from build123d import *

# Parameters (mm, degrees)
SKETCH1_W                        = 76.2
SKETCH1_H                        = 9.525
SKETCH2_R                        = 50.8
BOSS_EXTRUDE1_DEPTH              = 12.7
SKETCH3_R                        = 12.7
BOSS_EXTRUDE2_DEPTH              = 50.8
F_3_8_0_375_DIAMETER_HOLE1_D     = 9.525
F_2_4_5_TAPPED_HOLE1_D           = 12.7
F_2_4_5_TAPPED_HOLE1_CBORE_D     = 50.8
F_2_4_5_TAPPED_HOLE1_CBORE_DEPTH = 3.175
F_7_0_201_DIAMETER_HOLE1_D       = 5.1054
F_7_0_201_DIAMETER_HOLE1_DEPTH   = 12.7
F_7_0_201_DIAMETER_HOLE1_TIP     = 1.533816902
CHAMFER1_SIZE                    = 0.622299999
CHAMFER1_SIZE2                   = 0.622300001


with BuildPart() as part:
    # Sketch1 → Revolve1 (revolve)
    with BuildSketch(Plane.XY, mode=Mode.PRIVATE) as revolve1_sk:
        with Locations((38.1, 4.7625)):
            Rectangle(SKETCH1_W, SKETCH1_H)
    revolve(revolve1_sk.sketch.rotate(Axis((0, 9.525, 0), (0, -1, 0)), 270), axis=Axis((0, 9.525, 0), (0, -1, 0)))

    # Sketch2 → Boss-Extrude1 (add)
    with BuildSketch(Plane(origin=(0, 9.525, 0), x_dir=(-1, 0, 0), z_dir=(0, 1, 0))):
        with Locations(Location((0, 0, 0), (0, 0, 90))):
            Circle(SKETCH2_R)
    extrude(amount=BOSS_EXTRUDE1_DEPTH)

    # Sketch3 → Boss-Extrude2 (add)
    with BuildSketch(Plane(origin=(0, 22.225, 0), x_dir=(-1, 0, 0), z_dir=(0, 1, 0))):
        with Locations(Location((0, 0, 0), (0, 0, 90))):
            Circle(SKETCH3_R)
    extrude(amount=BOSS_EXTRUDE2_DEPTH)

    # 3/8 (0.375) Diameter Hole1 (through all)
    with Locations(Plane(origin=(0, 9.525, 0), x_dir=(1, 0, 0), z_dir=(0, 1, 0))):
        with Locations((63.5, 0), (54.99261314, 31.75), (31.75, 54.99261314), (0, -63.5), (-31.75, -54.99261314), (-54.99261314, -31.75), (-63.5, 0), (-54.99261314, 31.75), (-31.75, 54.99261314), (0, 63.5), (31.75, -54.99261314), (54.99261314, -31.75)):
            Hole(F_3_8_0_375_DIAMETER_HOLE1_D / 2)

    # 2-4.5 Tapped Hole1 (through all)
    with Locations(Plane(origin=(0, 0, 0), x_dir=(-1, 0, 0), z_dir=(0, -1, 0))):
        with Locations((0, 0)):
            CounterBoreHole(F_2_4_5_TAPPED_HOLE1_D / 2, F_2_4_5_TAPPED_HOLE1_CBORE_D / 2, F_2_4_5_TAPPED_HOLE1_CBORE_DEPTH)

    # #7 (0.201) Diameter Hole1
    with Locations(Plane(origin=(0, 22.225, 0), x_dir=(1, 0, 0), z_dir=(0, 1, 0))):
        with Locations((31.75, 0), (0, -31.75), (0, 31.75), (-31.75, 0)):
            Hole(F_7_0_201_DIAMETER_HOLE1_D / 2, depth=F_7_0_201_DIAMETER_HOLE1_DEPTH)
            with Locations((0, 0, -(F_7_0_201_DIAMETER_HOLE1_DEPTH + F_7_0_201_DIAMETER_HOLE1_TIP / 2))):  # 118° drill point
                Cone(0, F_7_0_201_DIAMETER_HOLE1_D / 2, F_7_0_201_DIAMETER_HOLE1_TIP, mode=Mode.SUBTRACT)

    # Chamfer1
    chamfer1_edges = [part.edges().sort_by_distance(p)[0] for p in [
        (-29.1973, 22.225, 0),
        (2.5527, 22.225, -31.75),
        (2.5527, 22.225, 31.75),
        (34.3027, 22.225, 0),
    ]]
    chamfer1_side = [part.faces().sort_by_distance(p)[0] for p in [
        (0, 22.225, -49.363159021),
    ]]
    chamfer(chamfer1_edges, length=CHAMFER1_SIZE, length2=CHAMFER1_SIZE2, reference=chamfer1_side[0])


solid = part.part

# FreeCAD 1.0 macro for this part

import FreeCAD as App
import Part
import Sketcher

V = App.Vector
Q = App.Units.Quantity


def edges_at(feature, points):
    """Names of the edges that pass closest to the given points."""
    edges = feature.Shape.Edges
    near = lambda p: min(range(len(edges)), key=lambda i: edges[i].distToShape(Part.Vertex(*p))[0])
    return sorted({f"Edge{near(p) + 1}" for p in points})

doc = App.newDocument("Part")
body = doc.addObject("PartDesign::Body", "Body")

# Sketch on XY plane
sketch1 = body.newObject("Sketcher::SketchObject", "Sketch")
sketch1.AttachmentSupport = (doc.getObject("XY_Plane"), [""])
sketch1.MapMode = "FlatFace"
sketch1.addGeometry([
    Part.LineSegment(V(0, 10, 0), V(0, 0, 0)),
    Part.LineSegment(V(0, 0, 0), V(76, 0, 0)),
    Part.LineSegment(V(76, 0, 0), V(76, 10, 0)),
    Part.LineSegment(V(76, 10, 0), V(0, 10, 0)),
], False)
sketch1.addConstraint([
    Sketcher.Constraint("Coincident", 0, 2, 1, 1),
    Sketcher.Constraint("Coincident", 1, 2, 2, 1),
    Sketcher.Constraint("Coincident", 2, 2, 3, 1),
    Sketcher.Constraint("Coincident", 3, 2, 0, 1),
    Sketcher.Constraint("Vertical", 0),
    Sketcher.Constraint("Horizontal", 1),
    Sketcher.Constraint("Vertical", 2),
    Sketcher.Constraint("Horizontal", 3),
    Sketcher.Constraint("Coincident", 0, 2, -1, 1),
    Sketcher.Constraint("DistanceX", 1, 1, 1, 2, Q("3 in")),
    Sketcher.Constraint("DistanceY", 0, 2, 0, 1, Q("0.375 in")),
])
revolution = body.newObject("PartDesign::Revolution", "Revolution")
revolution.Profile = sketch1
revolution.ReferenceAxis = (sketch1, ["V_Axis"])
revolution.Angle = 360

# Sketch on XZ plane
sketch2 = body.newObject("Sketcher::SketchObject", "Sketch001")
sketch2.AttachmentSupport = (doc.getObject("XZ_Plane"), [""])
sketch2.MapMode = "FlatFace"
sketch2.AttachmentOffset = App.Placement(V(0, 0, -0.375 * 25.4), App.Rotation())
sketch2.addGeometry(Part.Circle(V(0, 0, 0), V(0, 0, 1), 51), False)
sketch2.addConstraint([
    Sketcher.Constraint("Coincident", 0, 3, -1, 1),
    Sketcher.Constraint("Diameter", 0, Q("4 in")),
])
pad1 = body.newObject("PartDesign::Pad", "Pad")
pad1.Profile = sketch2
pad1.Length = Q("0.5 in")
pad1.Reversed = True

# Sketch on XZ plane
sketch3 = body.newObject("Sketcher::SketchObject", "Sketch002")
sketch3.AttachmentSupport = (doc.getObject("XZ_Plane"), [""])
sketch3.MapMode = "FlatFace"
sketch3.AttachmentOffset = App.Placement(V(0, 0, -0.875 * 25.4), App.Rotation())
sketch3.addGeometry(Part.Circle(V(0, 0, 0), V(0, 0, 1), 13), False)
sketch3.addConstraint([
    Sketcher.Constraint("Coincident", 0, 3, -1, 1),
    Sketcher.Constraint("Diameter", 0, Q("1 in")),
])
pad2 = body.newObject("PartDesign::Pad", "Pad001")
pad2.Profile = sketch3
pad2.Length = Q("2 in")
pad2.Reversed = True

# Sketch on XZ plane
sketch4 = body.newObject("Sketcher::SketchObject", "Sketch003")
sketch4.AttachmentSupport = (doc.getObject("XZ_Plane"), [""])
sketch4.MapMode = "FlatFace"
sketch4.AttachmentOffset = App.Placement(V(0, 0, -0.375 * 25.4), App.Rotation())
sketch4.addGeometry([
    Part.Circle(V(63.5, 0, 0), V(0, 0, 1), 4.8),  # 0
    Part.Circle(V(55, -31.8, 0), V(0, 0, 1), 4.8),  # 1
    Part.Circle(V(31.8, -55, 0), V(0, 0, 1), 4.8),  # 2
    Part.Circle(V(0, 63.5, 0), V(0, 0, 1), 4.8),  # 3
    Part.Circle(V(-31.8, 55, 0), V(0, 0, 1), 4.8),  # 4
    Part.Circle(V(-55, 31.8, 0), V(0, 0, 1), 4.8),  # 5
    Part.Circle(V(-63.5, 0, 0), V(0, 0, 1), 4.8),  # 6
    Part.Circle(V(-55, -31.8, 0), V(0, 0, 1), 4.8),  # 7
    Part.Circle(V(-31.8, -55, 0), V(0, 0, 1), 4.8),  # 8
    Part.Circle(V(0, -63.5, 0), V(0, 0, 1), 4.8),  # 9
    Part.Circle(V(31.8, 55, 0), V(0, 0, 1), 4.8),  # 10
    Part.Circle(V(55, 31.8, 0), V(0, 0, 1), 4.8),  # 11
], False)
sketch4.addConstraint([
    Sketcher.Constraint("Equal", 0, 1),
    Sketcher.Constraint("Equal", 1, 2),
    Sketcher.Constraint("Equal", 2, 3),
    Sketcher.Constraint("Equal", 3, 4),
    Sketcher.Constraint("Equal", 4, 5),
    Sketcher.Constraint("Equal", 5, 6),
    Sketcher.Constraint("Equal", 6, 7),
    Sketcher.Constraint("Equal", 7, 8),
    Sketcher.Constraint("Equal", 8, 9),
    Sketcher.Constraint("Equal", 9, 10),
    Sketcher.Constraint("Equal", 10, 11),
    Sketcher.Constraint("Symmetric", 2, 3, 4, 3, -1, 1),
    Sketcher.Constraint("Symmetric", 1, 3, 5, 3, -1, 1),
    Sketcher.Constraint("Symmetric", 0, 3, 6, 3, -1, 1),
    Sketcher.Constraint("Symmetric", 3, 3, 9, 3, -1, 1),
    Sketcher.Constraint("Symmetric", 8, 3, 10, 3, -1, 1),
    Sketcher.Constraint("Symmetric", 7, 3, 11, 3, -1, 1),
    Sketcher.Constraint("Symmetric", 1, 3, 7, 3, -2),
    Sketcher.Constraint("Symmetric", 2, 3, 8, 3, -2),
    Sketcher.Constraint("PointOnObject", 0, 3, -1),
    Sketcher.Constraint("PointOnObject", 3, 3, -2),
    Sketcher.Constraint("Diameter", 0, Q("0.375 in")),
    Sketcher.Constraint("DistanceX", -1, 1, 0, 3, Q("2.5 in")),
    Sketcher.Constraint("DistanceY", -1, 1, 3, 3, Q("2.5 in")),
    Sketcher.Constraint("DistanceX", 4, 3, 2, 3, Q("2.5 in")),
    Sketcher.Constraint("DistanceY", 1, 3, 5, 3, Q("2.5 in")),
    Sketcher.Constraint("DistanceX", -1, 1, 1, 3, 54.992613),
    Sketcher.Constraint("DistanceY", 2, 3, -1, 1, 54.992613),
])
doc.recompute()
hole = body.newObject("PartDesign::Hole", "Hole")
hole.Profile = sketch4
hole.ThreadType = "None"
hole.Diameter = Q("0.375 in")
hole.DepthType = "ThroughAll"
hole.Reversed = True

# Sketch on XZ plane
sketch5 = body.newObject("Sketcher::SketchObject", "Sketch004")
sketch5.AttachmentSupport = (doc.getObject("XZ_Plane"), [""])
sketch5.MapMode = "FlatFace"
sketch5.addGeometry(Part.Circle(V(0, 0, 0), V(0, 0, 1), 6), False)
sketch5.addConstraint([
    Sketcher.Constraint("Coincident", 0, 3, -1, 1),
    Sketcher.Constraint("Diameter", 0, Q("0.5 in")),
])
doc.recompute()
hole2 = body.newObject("PartDesign::Hole", "Hole001")
hole2.Profile = sketch5
hole2.ThreadType = "None"
hole2.Diameter = Q("0.5 in")
hole2.DepthType = "ThroughAll"
hole2.HoleCutType = "Counterbore"
hole2.HoleCutDiameter = Q("2 in")
hole2.HoleCutDepth = Q("0.125 in")

# Sketch on XZ plane
sketch6 = body.newObject("Sketcher::SketchObject", "Sketch005")
sketch6.AttachmentSupport = (doc.getObject("XZ_Plane"), [""])
sketch6.MapMode = "FlatFace"
sketch6.AttachmentOffset = App.Placement(V(0, 0, -0.875 * 25.4), App.Rotation())
sketch6.addGeometry([
    Part.Circle(V(31.8, 0, 0), V(0, 0, 1), 2.6),
    Part.Circle(V(0, 31.8, 0), V(0, 0, 1), 2.6),
    Part.Circle(V(0, -31.8, 0), V(0, 0, 1), 2.6),
    Part.Circle(V(-31.8, 0, 0), V(0, 0, 1), 2.6),
], False)
sketch6.addConstraint([
    Sketcher.Constraint("Equal", 0, 1),
    Sketcher.Constraint("Equal", 1, 2),
    Sketcher.Constraint("Equal", 2, 3),
    Sketcher.Constraint("Symmetric", 1, 3, 2, 3, -1, 1),
    Sketcher.Constraint("Symmetric", 0, 3, 3, 3, -1, 1),
    Sketcher.Constraint("PointOnObject", 0, 3, -1),
    Sketcher.Constraint("PointOnObject", 1, 3, -2),
    Sketcher.Constraint("Diameter", 0, Q("0.201 in")),
    Sketcher.Constraint("DistanceY", 2, 3, 1, 3, Q("2.5 in")),
    Sketcher.Constraint("DistanceX", 3, 3, 0, 3, Q("2.5 in")),
])
doc.recompute()
hole3 = body.newObject("PartDesign::Hole", "Hole002")
hole3.Profile = sketch6
hole3.ThreadType = "None"
hole3.Diameter = Q("0.201 in")
hole3.DepthType = "Dimension"
hole3.Depth = Q("0.5 in")
hole3.DrillPoint = "Angled"
hole3.DrillPointAngle = 118
hole3.Reversed = True
doc.recompute()

chamfer = body.newObject("PartDesign::Chamfer", "Chamfer")
chamfer.Base = (hole3, edges_at(hole3, [
    (-29.197, 22.225, 0),
    (2.553, 22.225, -31.75),
    (2.553, 22.225, 31.75),
    (34.303, 22.225, 0),
]))
chamfer.ChamferType = "Two distances"
chamfer.Size = Q("0.0245 in")
chamfer.Size2 = Q("0.0245 in")

doc.recompute()
